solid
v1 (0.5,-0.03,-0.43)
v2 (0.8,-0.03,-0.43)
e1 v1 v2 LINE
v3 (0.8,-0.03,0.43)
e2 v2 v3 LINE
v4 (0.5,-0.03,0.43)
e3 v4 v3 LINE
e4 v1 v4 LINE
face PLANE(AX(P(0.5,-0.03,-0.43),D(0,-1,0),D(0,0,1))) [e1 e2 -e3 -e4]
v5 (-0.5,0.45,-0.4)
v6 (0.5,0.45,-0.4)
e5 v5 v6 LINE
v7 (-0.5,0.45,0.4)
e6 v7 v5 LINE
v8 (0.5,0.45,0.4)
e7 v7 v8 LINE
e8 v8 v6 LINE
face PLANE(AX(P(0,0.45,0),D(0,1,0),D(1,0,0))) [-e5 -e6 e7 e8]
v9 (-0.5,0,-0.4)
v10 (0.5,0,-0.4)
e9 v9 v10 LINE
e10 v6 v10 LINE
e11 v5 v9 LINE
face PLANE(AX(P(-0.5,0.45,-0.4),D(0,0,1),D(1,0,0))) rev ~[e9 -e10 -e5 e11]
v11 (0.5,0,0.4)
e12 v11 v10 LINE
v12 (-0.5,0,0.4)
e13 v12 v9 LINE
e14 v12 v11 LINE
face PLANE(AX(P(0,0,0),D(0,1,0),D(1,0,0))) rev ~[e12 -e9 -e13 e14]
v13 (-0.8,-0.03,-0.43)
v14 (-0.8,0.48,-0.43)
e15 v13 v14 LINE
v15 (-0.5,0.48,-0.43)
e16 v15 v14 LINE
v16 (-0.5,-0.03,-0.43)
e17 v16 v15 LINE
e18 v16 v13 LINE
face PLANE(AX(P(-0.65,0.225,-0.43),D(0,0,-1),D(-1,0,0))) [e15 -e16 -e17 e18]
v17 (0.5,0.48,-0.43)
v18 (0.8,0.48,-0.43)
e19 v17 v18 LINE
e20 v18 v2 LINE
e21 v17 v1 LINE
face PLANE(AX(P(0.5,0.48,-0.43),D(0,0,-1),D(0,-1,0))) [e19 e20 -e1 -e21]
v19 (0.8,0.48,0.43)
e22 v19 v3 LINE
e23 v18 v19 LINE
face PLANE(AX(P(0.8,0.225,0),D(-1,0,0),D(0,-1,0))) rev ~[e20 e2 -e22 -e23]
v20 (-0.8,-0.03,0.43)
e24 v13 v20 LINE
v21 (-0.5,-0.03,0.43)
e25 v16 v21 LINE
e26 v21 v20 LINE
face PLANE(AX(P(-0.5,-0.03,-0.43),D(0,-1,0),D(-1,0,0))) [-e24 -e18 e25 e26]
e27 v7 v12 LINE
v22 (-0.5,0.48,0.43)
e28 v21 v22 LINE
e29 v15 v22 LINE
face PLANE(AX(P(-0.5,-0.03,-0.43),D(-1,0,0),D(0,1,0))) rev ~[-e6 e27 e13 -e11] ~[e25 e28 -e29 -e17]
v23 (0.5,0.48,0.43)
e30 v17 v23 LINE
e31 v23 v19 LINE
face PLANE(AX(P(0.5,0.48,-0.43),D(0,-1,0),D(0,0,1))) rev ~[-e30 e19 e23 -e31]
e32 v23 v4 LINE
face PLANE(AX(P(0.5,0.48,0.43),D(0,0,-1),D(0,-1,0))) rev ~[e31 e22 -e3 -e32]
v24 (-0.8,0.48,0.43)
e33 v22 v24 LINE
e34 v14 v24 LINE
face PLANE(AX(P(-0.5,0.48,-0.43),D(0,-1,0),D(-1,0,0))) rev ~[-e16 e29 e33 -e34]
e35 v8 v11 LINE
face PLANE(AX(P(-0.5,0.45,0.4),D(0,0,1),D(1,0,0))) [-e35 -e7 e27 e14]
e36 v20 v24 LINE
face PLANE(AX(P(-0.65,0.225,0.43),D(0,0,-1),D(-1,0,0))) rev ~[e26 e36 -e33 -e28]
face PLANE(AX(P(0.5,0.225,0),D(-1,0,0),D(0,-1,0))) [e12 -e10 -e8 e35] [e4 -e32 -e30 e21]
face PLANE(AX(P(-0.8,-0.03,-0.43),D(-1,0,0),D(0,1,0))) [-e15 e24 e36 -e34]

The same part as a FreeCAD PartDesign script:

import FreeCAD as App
import Part
import Sketcher

V = App.Vector
Q = App.Units.Quantity


def add_polygon(sketch, points):
    """Adds a closed chain of lines whose ends are joined by coincident constraints."""
    first, n = sketch.GeometryCount, len(points)
    for a, b in zip(points, points[1:] + points[:1]):
        sketch.addGeometry(Part.LineSegment(App.Vector(*a, 0), App.Vector(*b, 0)), False)
    for i in range(n):
        sketch.addConstraint(Sketcher.Constraint("Coincident", first + i, 2, first + (i + 1) % n, 1))

doc = App.newDocument("Part")
body = doc.addObject("PartDesign::Body", "Body")

sketch1 = body.newObject("Sketcher::SketchObject", "Sketch")
sketch1.AttachmentSupport = (doc.getObject("XZ_Plane"), [""])
sketch1.MapMode = "FlatFace"
sketch1.AttachmentOffset = App.Placement(V(0, 0, -0.45), App.Rotation())
add_polygon(sketch1, [(-0.5, -0.4), (-0.5, 0.4), (0.5, 0.4), (0.5, -0.4)])
sketch1.addConstraint(Sketcher.Constraint("Vertical", 0))
sketch1.addConstraint(Sketcher.Constraint("Horizontal", 1))
sketch1.addConstraint(Sketcher.Constraint("Vertical", 2))
sketch1.addConstraint(Sketcher.Constraint("Horizontal", 3))
sketch1.addConstraint(Sketcher.Constraint("Symmetric", 0, 2, 2, 2, -1, 1))
sketch1.addConstraint(Sketcher.Constraint("DistanceX", 1, 1, 1, 2, Q("1 mm")))
sketch1.addConstraint(Sketcher.Constraint("DistanceY", 0, 1, 0, 2, Q("0.8 mm")))
pad1 = body.newObject("PartDesign::Pad", "Pad")
pad1.Profile = sketch1
pad1.Length = 0.45

sketch2 = body.newObject("Sketcher::SketchObject", "Sketch001")
sketch2.AttachmentSupport = (doc.getObject("XY_Plane"), [""])
sketch2.MapMode = "FlatFace"
sketch2.AttachmentOffset = App.Placement(V(0, 0, -0.43), App.Rotation())
add_polygon(sketch2, [(-0.5, 0.48), (-0.5, -0.03), (-0.8, -0.03), (-0.8, 0.48)])
sketch2.addConstraint(Sketcher.Constraint("Vertical", 0))
sketch2.addConstraint(Sketcher.Constraint("Horizontal", 1))
sketch2.addConstraint(Sketcher.Constraint("Vertical", 2))
sketch2.addConstraint(Sketcher.Constraint("Horizontal", 3))
sketch2.addConstraint(Sketcher.Constraint("DistanceX", 1, 2, 1, 1, Q("0.3 mm")))
sketch2.addConstraint(Sketcher.Constraint("DistanceY", 0, 2, 0, 1, Q("0.51 mm")))
sketch2.addConstraint(Sketcher.Constraint("DistanceX", 0, 2, -1, 1, Q("0.5 mm")))
sketch2.addConstraint(Sketcher.Constraint("DistanceY", 0, 2, -1, 1, Q("0.03 mm")))
pad2 = body.newObject("PartDesign::Pad", "Pad001")
pad2.Profile = sketch2
pad2.Length = 0.86

sketch3 = body.newObject("Sketcher::SketchObject", "Sketch002")
sketch3.AttachmentSupport = (doc.getObject("YZ_Plane"), [""])
sketch3.MapMode = "FlatFace"
sketch3.AttachmentOffset = App.Placement(V(0, 0, 0.5), App.Rotation())
add_polygon(sketch3, [(0.48, 0.43), (0.48, -0.43), (-0.03, -0.43), (-0.03, 0.43)])
sketch3.addConstraint(Sketcher.Constraint("Vertical", 0))
sketch3.addConstraint(Sketcher.Constraint("Horizontal", 1))
sketch3.addConstraint(Sketcher.Constraint("Vertical", 2))
sketch3.addConstraint(Sketcher.Constraint("Horizontal", 3))
sketch3.addConstraint(Sketcher.Constraint("DistanceX", 1, 2, 1, 1, Q("0.51 mm")))
sketch3.addConstraint(Sketcher.Constraint("DistanceY", 0, 2, 0, 1, Q("0.86 mm")))
sketch3.addConstraint(Sketcher.Constraint("DistanceX", -1, 1, 0, 2, Q("0.48 mm")))
sketch3.addConstraint(Sketcher.Constraint("DistanceY", 0, 2, -1, 1, Q("0.43 mm")))
pad3 = body.newObject("PartDesign::Pad", "Pad002")
pad3.Profile = sketch3
pad3.Length = 0.3

doc.recompute()
